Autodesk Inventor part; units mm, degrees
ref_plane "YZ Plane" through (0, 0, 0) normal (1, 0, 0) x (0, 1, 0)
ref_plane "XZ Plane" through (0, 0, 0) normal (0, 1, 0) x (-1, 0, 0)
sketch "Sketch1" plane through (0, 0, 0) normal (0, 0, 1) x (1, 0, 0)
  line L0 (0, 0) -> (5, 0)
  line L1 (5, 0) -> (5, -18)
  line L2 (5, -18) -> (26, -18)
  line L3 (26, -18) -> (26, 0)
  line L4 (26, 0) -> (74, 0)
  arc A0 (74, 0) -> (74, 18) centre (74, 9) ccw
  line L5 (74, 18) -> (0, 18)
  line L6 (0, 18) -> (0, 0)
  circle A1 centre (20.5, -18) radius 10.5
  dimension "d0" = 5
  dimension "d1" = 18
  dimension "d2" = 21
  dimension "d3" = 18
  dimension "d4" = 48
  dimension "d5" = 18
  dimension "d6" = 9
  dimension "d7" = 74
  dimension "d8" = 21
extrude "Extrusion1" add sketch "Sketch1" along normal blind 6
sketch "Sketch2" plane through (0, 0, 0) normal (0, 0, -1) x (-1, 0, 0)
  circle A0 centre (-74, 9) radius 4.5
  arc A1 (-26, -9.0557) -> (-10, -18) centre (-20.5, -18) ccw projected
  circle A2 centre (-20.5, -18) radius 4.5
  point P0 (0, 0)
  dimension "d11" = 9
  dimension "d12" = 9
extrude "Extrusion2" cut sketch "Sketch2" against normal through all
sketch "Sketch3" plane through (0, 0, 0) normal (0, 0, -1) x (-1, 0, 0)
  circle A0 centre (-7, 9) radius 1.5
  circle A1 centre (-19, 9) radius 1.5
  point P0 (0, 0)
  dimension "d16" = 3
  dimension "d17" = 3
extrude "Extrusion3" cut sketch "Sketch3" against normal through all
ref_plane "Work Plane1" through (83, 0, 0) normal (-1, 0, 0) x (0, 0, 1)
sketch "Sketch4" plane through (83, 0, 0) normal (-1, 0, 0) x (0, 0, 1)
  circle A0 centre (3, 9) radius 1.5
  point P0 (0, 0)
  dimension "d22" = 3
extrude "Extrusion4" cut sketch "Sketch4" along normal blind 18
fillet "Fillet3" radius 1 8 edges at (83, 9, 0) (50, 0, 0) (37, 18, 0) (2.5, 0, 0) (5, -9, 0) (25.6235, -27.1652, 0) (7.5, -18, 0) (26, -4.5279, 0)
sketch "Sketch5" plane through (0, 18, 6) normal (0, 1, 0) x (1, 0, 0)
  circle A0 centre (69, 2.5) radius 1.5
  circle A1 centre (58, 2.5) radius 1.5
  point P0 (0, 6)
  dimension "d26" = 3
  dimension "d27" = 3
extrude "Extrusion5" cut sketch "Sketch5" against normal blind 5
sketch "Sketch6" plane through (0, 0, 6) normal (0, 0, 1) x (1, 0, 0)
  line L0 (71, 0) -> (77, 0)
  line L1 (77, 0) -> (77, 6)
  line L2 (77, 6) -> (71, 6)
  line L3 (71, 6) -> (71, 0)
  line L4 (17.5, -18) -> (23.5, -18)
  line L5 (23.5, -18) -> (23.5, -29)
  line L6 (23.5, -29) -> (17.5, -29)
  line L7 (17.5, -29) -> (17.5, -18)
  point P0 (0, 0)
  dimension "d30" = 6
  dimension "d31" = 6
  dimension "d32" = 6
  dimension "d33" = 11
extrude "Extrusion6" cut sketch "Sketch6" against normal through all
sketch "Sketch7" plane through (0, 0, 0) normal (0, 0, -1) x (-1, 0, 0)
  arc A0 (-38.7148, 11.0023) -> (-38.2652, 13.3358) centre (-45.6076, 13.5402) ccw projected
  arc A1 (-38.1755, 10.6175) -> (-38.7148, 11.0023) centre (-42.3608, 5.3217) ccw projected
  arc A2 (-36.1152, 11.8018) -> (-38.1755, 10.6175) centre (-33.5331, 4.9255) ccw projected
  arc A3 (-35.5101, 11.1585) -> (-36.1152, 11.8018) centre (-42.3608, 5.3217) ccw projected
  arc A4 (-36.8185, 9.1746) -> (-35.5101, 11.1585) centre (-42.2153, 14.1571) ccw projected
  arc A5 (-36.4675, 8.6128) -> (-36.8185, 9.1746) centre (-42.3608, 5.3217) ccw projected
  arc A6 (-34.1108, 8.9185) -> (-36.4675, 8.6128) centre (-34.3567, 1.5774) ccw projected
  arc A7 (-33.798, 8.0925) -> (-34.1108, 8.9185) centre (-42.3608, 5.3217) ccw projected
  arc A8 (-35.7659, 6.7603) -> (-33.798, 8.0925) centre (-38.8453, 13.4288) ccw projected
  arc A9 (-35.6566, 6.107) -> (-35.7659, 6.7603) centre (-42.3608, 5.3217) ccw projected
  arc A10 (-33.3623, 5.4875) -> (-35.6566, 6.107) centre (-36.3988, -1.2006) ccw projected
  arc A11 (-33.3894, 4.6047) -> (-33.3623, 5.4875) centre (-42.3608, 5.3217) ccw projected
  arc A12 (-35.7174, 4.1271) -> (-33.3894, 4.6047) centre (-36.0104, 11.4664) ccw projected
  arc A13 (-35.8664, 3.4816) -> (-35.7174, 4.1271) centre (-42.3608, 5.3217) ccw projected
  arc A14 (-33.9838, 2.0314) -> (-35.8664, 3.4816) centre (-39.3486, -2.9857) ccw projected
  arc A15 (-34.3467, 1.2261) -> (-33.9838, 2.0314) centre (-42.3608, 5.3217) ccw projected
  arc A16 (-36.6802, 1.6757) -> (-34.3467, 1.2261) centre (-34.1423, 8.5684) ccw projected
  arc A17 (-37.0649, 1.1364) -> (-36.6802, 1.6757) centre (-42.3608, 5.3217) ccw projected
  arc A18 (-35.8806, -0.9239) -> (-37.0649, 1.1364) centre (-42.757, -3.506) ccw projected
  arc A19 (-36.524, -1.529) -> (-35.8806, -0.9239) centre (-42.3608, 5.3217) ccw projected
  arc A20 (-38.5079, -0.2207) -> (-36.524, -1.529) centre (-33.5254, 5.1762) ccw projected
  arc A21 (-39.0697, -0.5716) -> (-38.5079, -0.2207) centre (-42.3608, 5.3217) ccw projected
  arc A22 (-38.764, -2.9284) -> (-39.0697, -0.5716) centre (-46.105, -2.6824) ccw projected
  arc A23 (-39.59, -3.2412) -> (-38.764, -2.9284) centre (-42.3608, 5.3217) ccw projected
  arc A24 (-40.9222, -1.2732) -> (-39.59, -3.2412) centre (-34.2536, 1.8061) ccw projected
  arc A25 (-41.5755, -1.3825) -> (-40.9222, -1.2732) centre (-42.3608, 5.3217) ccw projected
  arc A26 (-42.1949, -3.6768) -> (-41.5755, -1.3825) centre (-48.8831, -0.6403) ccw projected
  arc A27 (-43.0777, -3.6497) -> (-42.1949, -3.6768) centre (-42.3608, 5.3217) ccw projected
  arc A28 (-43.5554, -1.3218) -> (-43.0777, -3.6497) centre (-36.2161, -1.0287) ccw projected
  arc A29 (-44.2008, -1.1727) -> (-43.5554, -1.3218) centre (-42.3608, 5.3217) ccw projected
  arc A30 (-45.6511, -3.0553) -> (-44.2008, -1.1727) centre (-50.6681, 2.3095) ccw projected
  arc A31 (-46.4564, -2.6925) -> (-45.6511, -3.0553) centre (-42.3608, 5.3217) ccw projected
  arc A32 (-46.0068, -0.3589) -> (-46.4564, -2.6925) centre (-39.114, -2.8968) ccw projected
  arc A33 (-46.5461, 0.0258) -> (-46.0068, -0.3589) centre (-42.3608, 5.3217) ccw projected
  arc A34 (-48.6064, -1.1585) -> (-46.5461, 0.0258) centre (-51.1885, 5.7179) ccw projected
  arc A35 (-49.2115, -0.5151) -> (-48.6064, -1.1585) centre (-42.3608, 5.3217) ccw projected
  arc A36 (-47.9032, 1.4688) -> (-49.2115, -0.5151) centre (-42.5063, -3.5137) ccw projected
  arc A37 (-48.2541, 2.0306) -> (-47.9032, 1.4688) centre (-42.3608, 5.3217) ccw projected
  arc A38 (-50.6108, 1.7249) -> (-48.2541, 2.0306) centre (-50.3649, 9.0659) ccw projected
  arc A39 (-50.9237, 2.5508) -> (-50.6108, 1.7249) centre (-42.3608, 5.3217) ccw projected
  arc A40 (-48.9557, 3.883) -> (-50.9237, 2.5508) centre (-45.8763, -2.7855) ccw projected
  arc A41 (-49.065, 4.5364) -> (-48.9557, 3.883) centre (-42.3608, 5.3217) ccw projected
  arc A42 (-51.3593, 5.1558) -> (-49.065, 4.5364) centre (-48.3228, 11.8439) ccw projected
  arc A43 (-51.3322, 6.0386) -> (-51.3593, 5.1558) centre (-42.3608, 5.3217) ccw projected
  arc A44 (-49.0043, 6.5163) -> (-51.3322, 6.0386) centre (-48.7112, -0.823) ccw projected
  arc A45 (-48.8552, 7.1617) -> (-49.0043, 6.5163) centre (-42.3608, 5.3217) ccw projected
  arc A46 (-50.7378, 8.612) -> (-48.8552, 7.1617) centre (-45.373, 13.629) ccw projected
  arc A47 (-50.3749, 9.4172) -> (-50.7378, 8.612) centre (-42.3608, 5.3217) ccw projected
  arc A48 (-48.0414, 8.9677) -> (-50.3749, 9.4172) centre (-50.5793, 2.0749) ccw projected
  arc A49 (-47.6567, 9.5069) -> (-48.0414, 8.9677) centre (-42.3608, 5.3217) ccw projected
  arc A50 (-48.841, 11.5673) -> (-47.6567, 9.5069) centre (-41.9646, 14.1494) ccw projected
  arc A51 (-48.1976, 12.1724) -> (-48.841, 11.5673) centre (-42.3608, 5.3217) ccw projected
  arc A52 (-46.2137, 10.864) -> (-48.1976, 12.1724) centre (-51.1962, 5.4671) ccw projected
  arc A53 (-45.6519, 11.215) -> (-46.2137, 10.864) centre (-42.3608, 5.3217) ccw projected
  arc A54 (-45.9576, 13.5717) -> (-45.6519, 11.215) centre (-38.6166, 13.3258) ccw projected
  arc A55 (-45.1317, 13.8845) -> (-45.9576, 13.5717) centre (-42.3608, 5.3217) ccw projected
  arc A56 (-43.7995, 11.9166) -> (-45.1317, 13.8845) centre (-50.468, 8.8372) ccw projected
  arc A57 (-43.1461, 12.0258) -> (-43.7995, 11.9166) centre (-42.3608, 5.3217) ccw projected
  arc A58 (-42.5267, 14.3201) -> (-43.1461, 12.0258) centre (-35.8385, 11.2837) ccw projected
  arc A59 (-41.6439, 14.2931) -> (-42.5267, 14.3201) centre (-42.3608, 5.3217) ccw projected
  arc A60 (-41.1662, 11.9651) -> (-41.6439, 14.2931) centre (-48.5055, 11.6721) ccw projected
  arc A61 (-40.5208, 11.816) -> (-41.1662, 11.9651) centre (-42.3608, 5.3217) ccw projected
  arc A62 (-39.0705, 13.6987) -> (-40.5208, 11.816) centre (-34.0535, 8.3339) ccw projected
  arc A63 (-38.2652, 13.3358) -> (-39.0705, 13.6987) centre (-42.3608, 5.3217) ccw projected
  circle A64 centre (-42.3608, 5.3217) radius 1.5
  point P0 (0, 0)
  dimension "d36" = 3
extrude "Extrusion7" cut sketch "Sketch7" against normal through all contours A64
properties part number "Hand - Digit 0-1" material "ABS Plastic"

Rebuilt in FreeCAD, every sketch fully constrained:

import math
import FreeCAD as App
import Part
import Sketcher
from FreeCAD import Vector
Q = App.Units.Quantity


def edges_at(feature, points):
    """Names of the edges that pass closest to the given points."""
    edges = feature.Shape.Edges
    near = lambda p: min(range(len(edges)), key=lambda i: edges[i].distToShape(Part.Vertex(*p))[0])
    return sorted({f"Edge{near(p) + 1}" for p in points})


def add_polygon(sketch, points):
    """Adds a closed chain of lines whose ends are joined by coincident constraints."""
    first, n = sketch.GeometryCount, len(points)
    for a, b in zip(points, points[1:] + points[:1]):
        sketch.addGeometry(Part.LineSegment(App.Vector(*a, 0), App.Vector(*b, 0)), False)
    for i in range(n):
        sketch.addConstraint(Sketcher.Constraint("Coincident", first + i, 2, first + (i + 1) % n, 1))

doc = App.newDocument("Part")
body = doc.addObject("PartDesign::Body", "Body")

# Sketch on XY plane
sketch1 = body.newObject("Sketcher::SketchObject", "Sketch")
sketch1.AttachmentSupport = (doc.getObject("XY_Plane"), [""])
sketch1.MapMode = "FlatFace"
sketch1.addGeometry([
    Part.LineSegment(Vector(0, 18, 0), Vector(0, 0, 0)),  # 0
    Part.LineSegment(Vector(0, 0, 0), Vector(5, 0, 0)),  # 1
    Part.LineSegment(Vector(5, 0, 0), Vector(5, -18, 0)),  # 2
    Part.LineSegment(Vector(5, -18, 0), Vector(10, -18, 0)),  # 3
    Part.ArcOfCircle(Part.Circle(Vector(20, -18, 0), Vector(0, 0, 1), 10), math.radians(180), math.radians(418)),  # 4
    Part.LineSegment(Vector(26, -9, 0), Vector(26, 0, 0)),  # 5
    Part.LineSegment(Vector(26, 0, 0), Vector(74, 0, 0)),  # 6
    Part.ArcOfCircle(Part.Circle(Vector(74, 9, 0), Vector(0, 0, 1), 9), math.radians(-90), math.radians(90)),  # 7
    Part.LineSegment(Vector(74, 18, 0), Vector(0, 18, 0)),  # 8
], False)
sketch1.addConstraint([
    Sketcher.Constraint("Coincident", 0, 2, 1, 1),
    Sketcher.Constraint("Coincident", 1, 2, 2, 1),
    Sketcher.Constraint("Coincident", 2, 2, 3, 1),
    Sketcher.Constraint("Coincident", 3, 2, 4, 1),
    Sketcher.Constraint("Coincident", 4, 2, 5, 1),
    Sketcher.Constraint("Coincident", 5, 2, 6, 1),
    Sketcher.Constraint("Tangent", 6, 2, 7, 1),
    Sketcher.Constraint("Tangent", 7, 2, 8, 1),
    Sketcher.Constraint("Coincident", 8, 2, 0, 1),
    Sketcher.Constraint("Vertical", 0),
    Sketcher.Constraint("Horizontal", 1),
    Sketcher.Constraint("Vertical", 2),
    Sketcher.Constraint("Horizontal", 3),
    Sketcher.Constraint("Vertical", 5),
    Sketcher.Constraint("Horizontal", 6),
    Sketcher.Constraint("Horizontal", 8),
    Sketcher.Constraint("Coincident", 0, 2, -1, 1),
    Sketcher.Constraint("PointOnObject", 5, 2, -1),
    Sketcher.Constraint("Horizontal", 4, 3, 2, 2),
    Sketcher.Constraint("Equal", 1, 3),
    Sketcher.Constraint("Equal", 0, 2),
    Sketcher.Constraint("Radius", 7, Q("9 mm")),
    Sketcher.Constraint("Radius", 4, Q("10.5 mm")),
    Sketcher.Constraint("DistanceX", 1, 1, 1, 2, Q("5 mm")),
    Sketcher.Constraint("DistanceX", 6, 1, 6, 2, Q("48 mm")),
    Sketcher.Constraint("DistanceX", 8, 2, 8, 1, Q("74 mm")),
])
pad1 = body.newObject("PartDesign::Pad", "Pad")
pad1.Profile = sketch1
pad1.Length = 6

# Sketch on XY plane
sketch2 = body.newObject("Sketcher::SketchObject", "Sketch001")
sketch2.AttachmentSupport = (doc.getObject("XY_Plane"), [""])
sketch2.MapMode = "FlatFace"
sketch2.addGeometry([
    Part.Circle(Vector(74, 9, 0), Vector(0, 0, 1), 4.5),
    Part.Circle(Vector(20.5, -18, 0), Vector(0, 0, 1), 4.5),
], False)
sketch2.addConstraint([
    Sketcher.Constraint("Equal", 0, 1),
    Sketcher.Constraint("Diameter", 0, Q("9 mm")),
    Sketcher.Constraint("DistanceY", -1, 1, 0, 3, Q("9 mm")),
    Sketcher.Constraint("DistanceX", -1, 1, 0, 3, Q("74 mm")),
    Sketcher.Constraint("DistanceY", 1, 3, -1, 1, Q("18 mm")),
    Sketcher.Constraint("DistanceX", -1, 1, 1, 3, Q("20.5 mm")),
])
pocket1 = body.newObject("PartDesign::Pocket", "Pocket")
pocket1.Profile = sketch2
pocket1.Type = "ThroughAll"
pocket1.Reversed = True

# Sketch on XY plane
sketch3 = body.newObject("Sketcher::SketchObject", "Sketch002")
sketch3.AttachmentSupport = (doc.getObject("XY_Plane"), [""])
sketch3.MapMode = "FlatFace"
sketch3.addGeometry([
    Part.Circle(Vector(7, 9, 0), Vector(0, 0, 1), 1.5),
    Part.Circle(Vector(19, 9, 0), Vector(0, 0, 1), 1.5),
], False)
sketch3.addConstraint([
    Sketcher.Constraint("Equal", 0, 1),
    Sketcher.Constraint("Horizontal", 0, 3, 1, 3),
    Sketcher.Constraint("Diameter", 0, Q("3 mm")),
    Sketcher.Constraint("DistanceX", -1, 1, 0, 3, Q("7 mm")),
    Sketcher.Constraint("DistanceY", -1, 1, 0, 3, Q("9 mm")),
    Sketcher.Constraint("DistanceX", -1, 1, 1, 3, Q("19 mm")),
])
pocket2 = body.newObject("PartDesign::Pocket", "Pocket001")
pocket2.Profile = sketch3
pocket2.Type = "ThroughAll"
pocket2.Reversed = True

# Sketch on YZ plane
sketch4 = body.newObject("Sketcher::SketchObject", "Sketch003")
sketch4.AttachmentSupport = (doc.getObject("YZ_Plane"), [""])
sketch4.MapMode = "FlatFace"
sketch4.AttachmentOffset = App.Placement(Vector(0, 0, 83), App.Rotation())
sketch4.addGeometry(Part.Circle(Vector(9, 3, 0), Vector(0, 0, 1), 1.5), False)
sketch4.addConstraint([
    Sketcher.Constraint("Diameter", 0, Q("3 mm")),
    Sketcher.Constraint("DistanceY", -1, 1, 0, 3, Q("3 mm")),
    Sketcher.Constraint("DistanceX", -1, 1, 0, 3, Q("9 mm")),
])
pocket3 = body.newObject("PartDesign::Pocket", "Pocket002")
pocket3.Profile = sketch4
pocket3.Length = 18
doc.recompute()

fillet = body.newObject("PartDesign::Fillet", "Fillet")
fillet.Base = (pocket3, edges_at(pocket3, [
    (83, 9, 0),
    (50, 0, 0),
    (37, 18, 0),
    (2.5, 0, 0),
    (5, -9, 0),
    (25.623, -27.165, 0),
    (7.5, -18, 0),
    (26, -4.528, 0),
]))
fillet.Radius = 1

# Sketch on XZ plane
sketch5 = body.newObject("Sketcher::SketchObject", "Sketch004")
sketch5.AttachmentSupport = (doc.getObject("XZ_Plane"), [""])
sketch5.MapMode = "FlatFace"
sketch5.AttachmentOffset = App.Placement(Vector(0, 0, -18), App.Rotation())
sketch5.addGeometry([
    Part.Circle(Vector(69, 3.5, 0), Vector(0, 0, 1), 1.5),
    Part.Circle(Vector(58, 3.5, 0), Vector(0, 0, 1), 1.5),
], False)
sketch5.addConstraint([
    Sketcher.Constraint("Equal", 0, 1),
    Sketcher.Constraint("Horizontal", 0, 3, 1, 3),
    Sketcher.Constraint("Diameter", 0, Q("3 mm")),
    Sketcher.Constraint("DistanceX", -1, 1, 0, 3, Q("69 mm")),
    Sketcher.Constraint("DistanceX", -1, 1, 1, 3, Q("58 mm")),
    Sketcher.Constraint("DistanceY", -1, 1, 0, 3, Q("3.5 mm")),
])
pocket4 = body.newObject("PartDesign::Pocket", "Pocket003")
pocket4.Profile = sketch5
pocket4.Length = 5
pocket4.Reversed = True

# Sketch on XY plane
sketch6 = body.newObject("Sketcher::SketchObject", "Sketch005")
sketch6.AttachmentSupport = (doc.getObject("XY_Plane"), [""])
sketch6.MapMode = "FlatFace"
sketch6.AttachmentOffset = App.Placement(Vector(0, 0, 6), App.Rotation())
add_polygon(sketch6, [(71, 6), (71, 0), (77, 0), (77, 6)])  # lines 0-3
add_polygon(sketch6, [(24, -18), (18, -18), (18, -29), (24, -29)])  # lines 4-7
sketch6.addConstraint([
    Sketcher.Constraint("Vertical", 0),
    Sketcher.Constraint("Horizontal", 1),
    Sketcher.Constraint("Vertical", 2),
    Sketcher.Constraint("Horizontal", 3),
    Sketcher.Constraint("Horizontal", 4),
    Sketcher.Constraint("Vertical", 5),
    Sketcher.Constraint("Horizontal", 6),
    Sketcher.Constraint("Vertical", 7),
    Sketcher.Constraint("PointOnObject", 0, 2, -1),
    Sketcher.Constraint("Equal", 3, 4),
    Sketcher.Constraint("Equal", 6, 0),
    Sketcher.Constraint("DistanceX", 1, 1, 1, 2, Q("6 mm")),
    Sketcher.Constraint("DistanceY", 5, 2, 5, 1, Q("11 mm")),
    Sketcher.Constraint("DistanceX", -1, 1, 0, 2, Q("71 mm")),
    Sketcher.Constraint("DistanceY", 4, 2, -1, 1, Q("18 mm")),
    Sketcher.Constraint("DistanceX", -1, 1, 4, 2, Q("17.5 mm")),
])
pocket5 = body.newObject("PartDesign::Pocket", "Pocket004")
pocket5.Profile = sketch6
pocket5.Type = "ThroughAll"

# Sketch on XY plane
sketch7 = body.newObject("Sketcher::SketchObject", "Sketch006")
sketch7.AttachmentSupport = (doc.getObject("XY_Plane"), [""])
sketch7.MapMode = "FlatFace"
sketch7.addGeometry(Part.Circle(Vector(42.4, 5.3, 0), Vector(0, 0, 1), 1.5), False)
sketch7.addConstraint([
    Sketcher.Constraint("Diameter", 0, Q("3 mm")),
    Sketcher.Constraint("DistanceX", -1, 1, 0, 3, Q("42.3608 mm")),
    Sketcher.Constraint("DistanceY", -1, 1, 0, 3, Q("5.3217 mm")),
])
pocket6 = body.newObject("PartDesign::Pocket", "Pocket005")
pocket6.Profile = sketch7
pocket6.Type = "ThroughAll"
pocket6.Reversed = True

doc.recompute()
